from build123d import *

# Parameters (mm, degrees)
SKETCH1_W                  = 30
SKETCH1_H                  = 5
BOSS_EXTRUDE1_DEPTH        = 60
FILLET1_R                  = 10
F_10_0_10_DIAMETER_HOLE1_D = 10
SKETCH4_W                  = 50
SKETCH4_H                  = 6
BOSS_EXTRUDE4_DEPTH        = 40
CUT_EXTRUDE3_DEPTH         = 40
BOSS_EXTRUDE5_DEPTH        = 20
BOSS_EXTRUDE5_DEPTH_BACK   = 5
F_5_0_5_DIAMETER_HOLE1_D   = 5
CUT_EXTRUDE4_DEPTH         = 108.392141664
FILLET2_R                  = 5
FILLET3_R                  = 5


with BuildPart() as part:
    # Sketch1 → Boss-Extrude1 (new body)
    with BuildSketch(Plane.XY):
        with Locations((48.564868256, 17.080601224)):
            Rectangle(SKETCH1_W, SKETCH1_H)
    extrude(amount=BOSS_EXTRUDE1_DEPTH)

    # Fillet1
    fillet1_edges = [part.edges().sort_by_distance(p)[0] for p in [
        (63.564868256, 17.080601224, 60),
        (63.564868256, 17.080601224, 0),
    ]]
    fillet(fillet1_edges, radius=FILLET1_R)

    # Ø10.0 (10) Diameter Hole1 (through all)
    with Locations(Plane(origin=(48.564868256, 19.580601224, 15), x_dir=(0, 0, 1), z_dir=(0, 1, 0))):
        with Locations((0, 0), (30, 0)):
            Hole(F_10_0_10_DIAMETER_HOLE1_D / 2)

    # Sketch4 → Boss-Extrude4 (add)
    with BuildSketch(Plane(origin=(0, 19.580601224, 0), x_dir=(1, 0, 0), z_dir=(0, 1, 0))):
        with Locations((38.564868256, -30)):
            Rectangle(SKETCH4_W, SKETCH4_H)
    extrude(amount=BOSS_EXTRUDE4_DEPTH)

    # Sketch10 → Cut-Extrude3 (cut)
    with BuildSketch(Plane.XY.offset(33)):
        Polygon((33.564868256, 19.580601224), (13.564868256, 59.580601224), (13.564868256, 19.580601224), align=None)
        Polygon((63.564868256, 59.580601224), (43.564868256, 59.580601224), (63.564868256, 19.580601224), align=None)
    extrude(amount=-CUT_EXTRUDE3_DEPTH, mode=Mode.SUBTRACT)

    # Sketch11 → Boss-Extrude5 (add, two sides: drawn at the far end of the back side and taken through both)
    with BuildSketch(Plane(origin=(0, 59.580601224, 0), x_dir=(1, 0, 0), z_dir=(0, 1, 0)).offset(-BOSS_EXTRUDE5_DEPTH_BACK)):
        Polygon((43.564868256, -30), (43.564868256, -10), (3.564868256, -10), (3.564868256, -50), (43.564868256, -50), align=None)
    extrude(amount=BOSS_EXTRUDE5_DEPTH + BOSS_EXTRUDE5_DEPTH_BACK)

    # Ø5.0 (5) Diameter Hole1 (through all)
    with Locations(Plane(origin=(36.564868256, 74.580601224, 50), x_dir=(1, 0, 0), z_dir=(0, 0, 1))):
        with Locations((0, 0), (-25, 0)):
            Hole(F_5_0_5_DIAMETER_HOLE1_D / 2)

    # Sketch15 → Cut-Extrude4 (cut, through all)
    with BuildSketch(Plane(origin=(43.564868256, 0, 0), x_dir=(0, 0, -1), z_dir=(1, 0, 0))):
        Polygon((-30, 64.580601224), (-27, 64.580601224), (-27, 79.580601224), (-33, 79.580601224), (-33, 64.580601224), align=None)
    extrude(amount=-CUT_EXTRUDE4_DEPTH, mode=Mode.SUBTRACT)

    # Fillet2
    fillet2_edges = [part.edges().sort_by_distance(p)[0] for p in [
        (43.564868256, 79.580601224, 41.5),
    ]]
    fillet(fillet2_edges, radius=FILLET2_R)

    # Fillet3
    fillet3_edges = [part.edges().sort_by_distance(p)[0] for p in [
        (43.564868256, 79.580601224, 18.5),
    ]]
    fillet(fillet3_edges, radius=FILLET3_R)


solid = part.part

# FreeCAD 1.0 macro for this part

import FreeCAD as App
import Part
import Sketcher
from FreeCAD import Vector


def edges_at(feature, points):
    """Names of the edges that pass closest to the given points."""
    edges = feature.Shape.Edges
    near = lambda p: min(range(len(edges)), key=lambda i: edges[i].distToShape(Part.Vertex(*p))[0])
    return sorted({f"Edge{near(p) + 1}" for p in points})

doc = App.newDocument("Part")
body = doc.addObject("PartDesign::Body", "Body")

# Sketch on XY plane
sketch1 = doc.addObject("Sketcher::SketchObject", "Sketch")
body.addObject(sketch1)
sketch1.AttachmentSupport = (doc.XY_Plane, [""])
sketch1.MapMode = "FlatFace"
sketch1.addGeometry([
    Part.LineSegment(Vector(33.6, 19.6, 0), Vector(33.6, 14.6, 0)),
    Part.LineSegment(Vector(33.6, 14.6, 0), Vector(63.6, 14.6, 0)),
    Part.LineSegment(Vector(63.6, 14.6, 0), Vector(63.6, 19.6, 0)),
    Part.LineSegment(Vector(63.6, 19.6, 0), Vector(33.6, 19.6, 0)),
], False)
sketch1.addConstraint([
    Sketcher.Constraint("Coincident", 0, 2, 1, 1),
    Sketcher.Constraint("Coincident", 1, 2, 2, 1),
    Sketcher.Constraint("Coincident", 2, 2, 3, 1),
    Sketcher.Constraint("Coincident", 3, 2, 0, 1),
    Sketcher.Constraint("Vertical", 0),
    Sketcher.Constraint("Horizontal", 1),
    Sketcher.Constraint("Vertical", 2),
    Sketcher.Constraint("Horizontal", 3),
    Sketcher.Constraint("DistanceX", 1, 1, 1, 2, 30.0),
    Sketcher.Constraint("DistanceY", 0, 2, 0, 1, 5.0),
    Sketcher.Constraint("DistanceY", -1, 1, 0, 2, 14.580601),
    Sketcher.Constraint("DistanceX", -1, 1, 0, 2, 33.564868),
])
pad1 = doc.addObject("PartDesign::Pad", "Pad")
body.addObject(pad1)
pad1.Profile = sketch1
pad1.Length = 60
doc.recompute()

fillet = doc.addObject("PartDesign::Fillet", "Fillet")
body.addObject(fillet)
fillet.Base = (pad1, edges_at(pad1, [(63.565, 17.081, 60), (63.565, 17.081, 0)]))
fillet.Radius = 10

# Sketch on XZ plane
sketch2 = doc.addObject("Sketcher::SketchObject", "Sketch001")
body.addObject(sketch2)
sketch2.AttachmentSupport = (doc.XZ_Plane, [""])
sketch2.MapMode = "FlatFace"
sketch2.AttachmentOffset = App.Placement(Vector(0, 0, -19.580601), App.Rotation())
sketch2.addGeometry([
    Part.Circle(Vector(49, 15, 0), Vector(0, 0, 1), 5),
    Part.Circle(Vector(49, 45, 0), Vector(0, 0, 1), 5),
], False)
sketch2.addConstraint([
    Sketcher.Constraint("Equal", 0, 1),
    Sketcher.Constraint("Vertical", 0, 3, 1, 3),
    Sketcher.Constraint("Diameter", 0, 10.0),
    Sketcher.Constraint("DistanceY", -1, 1, 0, 3, 15.0),
    Sketcher.Constraint("DistanceY", -1, 1, 1, 3, 45.0),
    Sketcher.Constraint("DistanceX", -1, 1, 0, 3, 48.564868),
])
doc.recompute()
hole = doc.addObject("PartDesign::Hole", "Hole")
body.addObject(hole)
hole.Profile = sketch2
hole.ThreadType = "None"
hole.Diameter = 10
hole.DepthType = "ThroughAll"
hole.Reversed = True

# Sketch on XZ plane
sketch3 = doc.addObject("Sketcher::SketchObject", "Sketch002")
body.addObject(sketch3)
sketch3.AttachmentSupport = (doc.XZ_Plane, [""])
sketch3.MapMode = "FlatFace"
sketch3.AttachmentOffset = App.Placement(Vector(0, 0, -19.580601), App.Rotation())
sketch3.addGeometry([
    Part.LineSegment(Vector(14, 27, 0), Vector(14, 33, 0)),
    Part.LineSegment(Vector(14, 33, 0), Vector(64, 33, 0)),
    Part.LineSegment(Vector(64, 33, 0), Vector(64, 27, 0)),
    Part.LineSegment(Vector(64, 27, 0), Vector(14, 27, 0)),
], False)
sketch3.addConstraint([
    Sketcher.Constraint("Coincident", 0, 2, 1, 1),
    Sketcher.Constraint("Coincident", 1, 2, 2, 1),
    Sketcher.Constraint("Coincident", 2, 2, 3, 1),
    Sketcher.Constraint("Coincident", 3, 2, 0, 1),
    Sketcher.Constraint("Vertical", 0),
    Sketcher.Constraint("Horizontal", 1),
    Sketcher.Constraint("Vertical", 2),
    Sketcher.Constraint("Horizontal", 3),
    Sketcher.Constraint("DistanceX", 1, 1, 1, 2, 50.0),
    Sketcher.Constraint("DistanceY", 0, 1, 0, 2, 6.0),
    Sketcher.Constraint("DistanceY", -1, 1, 0, 2, 33.0),
    Sketcher.Constraint("DistanceX", -1, 1, 0, 2, 13.564868),
])
pad2 = doc.addObject("PartDesign::Pad", "Pad001")
body.addObject(pad2)
pad2.Profile = sketch3
pad2.Length = 40
pad2.Reversed = True

# Sketch on XY plane
sketch4 = doc.addObject("Sketcher::SketchObject", "Sketch003")
body.addObject(sketch4)
sketch4.AttachmentSupport = (doc.XY_Plane, [""])
sketch4.MapMode = "FlatFace"
sketch4.AttachmentOffset = App.Placement(Vector(0, 0, 33), App.Rotation())
sketch4.addGeometry([
    Part.LineSegment(Vector(34, 20, 0), Vector(14, 60, 0)),  # 0
    Part.LineSegment(Vector(14, 60, 0), Vector(14, 20, 0)),  # 1
    Part.LineSegment(Vector(14, 20, 0), Vector(34, 20, 0)),  # 2
    Part.LineSegment(Vector(64, 60, 0), Vector(44, 60, 0)),  # 3
    Part.LineSegment(Vector(44, 60, 0), Vector(64, 20, 0)),  # 4
    Part.LineSegment(Vector(64, 20, 0), Vector(64, 60, 0)),  # 5
], False)
sketch4.addConstraint([
    Sketcher.Constraint("Coincident", 0, 2, 1, 1),
    Sketcher.Constraint("Coincident", 1, 2, 2, 1),
    Sketcher.Constraint("Coincident", 2, 2, 0, 1),
    Sketcher.Constraint("Coincident", 3, 2, 4, 1),
    Sketcher.Constraint("Coincident", 4, 2, 5, 1),
    Sketcher.Constraint("Coincident", 5, 2, 3, 1),
    Sketcher.Constraint("Vertical", 1),
    Sketcher.Constraint("Horizontal", 2),
    Sketcher.Constraint("Horizontal", 3),
    Sketcher.Constraint("Vertical", 5),
    Sketcher.Constraint("Parallel", 0, 4),
    Sketcher.Constraint("Horizontal", 0, 2, 3, 2),
    Sketcher.Constraint("Horizontal", 2, 2, 4, 2),
    Sketcher.Constraint("DistanceX", 2, 1, 2, 2, 20.0),
    Sketcher.Constraint("DistanceY", 1, 2, 1, 1, 40.0),
    Sketcher.Constraint("DistanceX", 0, 2, 3, 2, 30.0),
    Sketcher.Constraint("DistanceY", -1, 1, 0, 2, 59.580601),
    Sketcher.Constraint("DistanceX", -1, 1, 0, 2, 13.564868),
])
pocket1 = doc.addObject("PartDesign::Pocket", "Pocket")
body.addObject(pocket1)
pocket1.Profile = sketch4
pocket1.Length = 40

# Sketch on XZ plane
sketch5 = doc.addObject("Sketcher::SketchObject", "Sketch004")
body.addObject(sketch5)
sketch5.AttachmentSupport = (doc.XZ_Plane, [""])
sketch5.MapMode = "FlatFace"
sketch5.AttachmentOffset = App.Placement(Vector(0, 0, -59.580601), App.Rotation())
sketch5.addGeometry([
    Part.LineSegment(Vector(44, 10, 0), Vector(4, 10, 0)),
    Part.LineSegment(Vector(4, 10, 0), Vector(4, 50, 0)),
    Part.LineSegment(Vector(4, 50, 0), Vector(44, 50, 0)),
    Part.LineSegment(Vector(44, 50, 0), Vector(44, 10, 0)),
], False)
sketch5.addConstraint([
    Sketcher.Constraint("Coincident", 0, 2, 1, 1),
    Sketcher.Constraint("Coincident", 1, 2, 2, 1),
    Sketcher.Constraint("Coincident", 2, 2, 3, 1),
    Sketcher.Constraint("Coincident", 3, 2, 0, 1),
    Sketcher.Constraint("Horizontal", 0),
    Sketcher.Constraint("Vertical", 1),
    Sketcher.Constraint("Horizontal", 2),
    Sketcher.Constraint("Vertical", 3),
    Sketcher.Constraint("Equal", 2, 1),
    Sketcher.Constraint("DistanceX", 0, 2, 0, 1, 40.0),
    Sketcher.Constraint("DistanceY", -1, 1, 0, 2, 10.0),
    Sketcher.Constraint("DistanceX", -1, 1, 0, 2, 3.564868),
])
pad3 = doc.addObject("PartDesign::Pad", "Pad002")
body.addObject(pad3)
pad3.Profile = sketch5
pad3.Type = "TwoLengths"
pad3.Length = 20
pad3.Length2 = 5
pad3.Reversed = True

# Sketch on XY plane
sketch6 = doc.addObject("Sketcher::SketchObject", "Sketch005")
body.addObject(sketch6)
sketch6.AttachmentSupport = (doc.XY_Plane, [""])
sketch6.MapMode = "FlatFace"
sketch6.AttachmentOffset = App.Placement(Vector(0, 0, 50), App.Rotation())
sketch6.addGeometry([
    Part.Circle(Vector(36.6, 74.6, 0), Vector(0, 0, 1), 2.5),
    Part.Circle(Vector(11.6, 74.6, 0), Vector(0, 0, 1), 2.5),
], False)
sketch6.addConstraint([
    Sketcher.Constraint("Equal", 0, 1),
    Sketcher.Constraint("Horizontal", 0, 3, 1, 3),
    Sketcher.Constraint("Diameter", 0, 5.0),
    Sketcher.Constraint("DistanceX", 1, 3, 0, 3, 25.0),
    Sketcher.Constraint("DistanceY", -1, 1, 0, 3, 74.580601),
    Sketcher.Constraint("DistanceX", -1, 1, 0, 3, 36.564868),
])
doc.recompute()
hole2 = doc.addObject("PartDesign::Hole", "Hole001")
body.addObject(hole2)
hole2.Profile = sketch6
hole2.ThreadType = "None"
hole2.Diameter = 5
hole2.DepthType = "ThroughAll"

# Sketch on YZ plane
sketch7 = doc.addObject("Sketcher::SketchObject", "Sketch006")
body.addObject(sketch7)
sketch7.AttachmentSupport = (doc.YZ_Plane, [""])
sketch7.MapMode = "FlatFace"
sketch7.AttachmentOffset = App.Placement(Vector(0, 0, 43.564868), App.Rotation())
sketch7.addGeometry([
    Part.LineSegment(Vector(65, 27, 0), Vector(80, 27, 0)),
    Part.LineSegment(Vector(80, 27, 0), Vector(80, 33, 0)),
    Part.LineSegment(Vector(80, 33, 0), Vector(65, 33, 0)),
    Part.LineSegment(Vector(65, 33, 0), Vector(65, 27, 0)),
], False)
sketch7.addConstraint([
    Sketcher.Constraint("Coincident", 0, 2, 1, 1),
    Sketcher.Constraint("Coincident", 1, 2, 2, 1),
    Sketcher.Constraint("Coincident", 2, 2, 3, 1),
    Sketcher.Constraint("Coincident", 3, 2, 0, 1),
    Sketcher.Constraint("Horizontal", 0),
    Sketcher.Constraint("Vertical", 1),
    Sketcher.Constraint("Horizontal", 2),
    Sketcher.Constraint("Vertical", 3),
    Sketcher.Constraint("DistanceX", 0, 1, 0, 2, 15.0),
    Sketcher.Constraint("DistanceY", 1, 1, 1, 2, 6.0),
    Sketcher.Constraint("DistanceY", -1, 1, 0, 2, 27.0),
    Sketcher.Constraint("DistanceX", -1, 1, 0, 2, 79.580601),
])
pocket2 = doc.addObject("PartDesign::Pocket", "Pocket001")
body.addObject(pocket2)
pocket2.Profile = sketch7
pocket2.Type = "ThroughAll"
doc.recompute()

fillet2 = doc.addObject("PartDesign::Fillet", "Fillet001")
body.addObject(fillet2)
fillet2.Base = (pocket2, edges_at(pocket2, [(43.565, 79.581, 41.5)]))
fillet2.Radius = 5
doc.recompute()

fillet3 = doc.addObject("PartDesign::Fillet", "Fillet002")
body.addObject(fillet3)
fillet3.Base = (fillet2, edges_at(fillet2, [(43.565, 79.581, 18.5)]))
fillet3.Radius = 5

doc.recompute()
